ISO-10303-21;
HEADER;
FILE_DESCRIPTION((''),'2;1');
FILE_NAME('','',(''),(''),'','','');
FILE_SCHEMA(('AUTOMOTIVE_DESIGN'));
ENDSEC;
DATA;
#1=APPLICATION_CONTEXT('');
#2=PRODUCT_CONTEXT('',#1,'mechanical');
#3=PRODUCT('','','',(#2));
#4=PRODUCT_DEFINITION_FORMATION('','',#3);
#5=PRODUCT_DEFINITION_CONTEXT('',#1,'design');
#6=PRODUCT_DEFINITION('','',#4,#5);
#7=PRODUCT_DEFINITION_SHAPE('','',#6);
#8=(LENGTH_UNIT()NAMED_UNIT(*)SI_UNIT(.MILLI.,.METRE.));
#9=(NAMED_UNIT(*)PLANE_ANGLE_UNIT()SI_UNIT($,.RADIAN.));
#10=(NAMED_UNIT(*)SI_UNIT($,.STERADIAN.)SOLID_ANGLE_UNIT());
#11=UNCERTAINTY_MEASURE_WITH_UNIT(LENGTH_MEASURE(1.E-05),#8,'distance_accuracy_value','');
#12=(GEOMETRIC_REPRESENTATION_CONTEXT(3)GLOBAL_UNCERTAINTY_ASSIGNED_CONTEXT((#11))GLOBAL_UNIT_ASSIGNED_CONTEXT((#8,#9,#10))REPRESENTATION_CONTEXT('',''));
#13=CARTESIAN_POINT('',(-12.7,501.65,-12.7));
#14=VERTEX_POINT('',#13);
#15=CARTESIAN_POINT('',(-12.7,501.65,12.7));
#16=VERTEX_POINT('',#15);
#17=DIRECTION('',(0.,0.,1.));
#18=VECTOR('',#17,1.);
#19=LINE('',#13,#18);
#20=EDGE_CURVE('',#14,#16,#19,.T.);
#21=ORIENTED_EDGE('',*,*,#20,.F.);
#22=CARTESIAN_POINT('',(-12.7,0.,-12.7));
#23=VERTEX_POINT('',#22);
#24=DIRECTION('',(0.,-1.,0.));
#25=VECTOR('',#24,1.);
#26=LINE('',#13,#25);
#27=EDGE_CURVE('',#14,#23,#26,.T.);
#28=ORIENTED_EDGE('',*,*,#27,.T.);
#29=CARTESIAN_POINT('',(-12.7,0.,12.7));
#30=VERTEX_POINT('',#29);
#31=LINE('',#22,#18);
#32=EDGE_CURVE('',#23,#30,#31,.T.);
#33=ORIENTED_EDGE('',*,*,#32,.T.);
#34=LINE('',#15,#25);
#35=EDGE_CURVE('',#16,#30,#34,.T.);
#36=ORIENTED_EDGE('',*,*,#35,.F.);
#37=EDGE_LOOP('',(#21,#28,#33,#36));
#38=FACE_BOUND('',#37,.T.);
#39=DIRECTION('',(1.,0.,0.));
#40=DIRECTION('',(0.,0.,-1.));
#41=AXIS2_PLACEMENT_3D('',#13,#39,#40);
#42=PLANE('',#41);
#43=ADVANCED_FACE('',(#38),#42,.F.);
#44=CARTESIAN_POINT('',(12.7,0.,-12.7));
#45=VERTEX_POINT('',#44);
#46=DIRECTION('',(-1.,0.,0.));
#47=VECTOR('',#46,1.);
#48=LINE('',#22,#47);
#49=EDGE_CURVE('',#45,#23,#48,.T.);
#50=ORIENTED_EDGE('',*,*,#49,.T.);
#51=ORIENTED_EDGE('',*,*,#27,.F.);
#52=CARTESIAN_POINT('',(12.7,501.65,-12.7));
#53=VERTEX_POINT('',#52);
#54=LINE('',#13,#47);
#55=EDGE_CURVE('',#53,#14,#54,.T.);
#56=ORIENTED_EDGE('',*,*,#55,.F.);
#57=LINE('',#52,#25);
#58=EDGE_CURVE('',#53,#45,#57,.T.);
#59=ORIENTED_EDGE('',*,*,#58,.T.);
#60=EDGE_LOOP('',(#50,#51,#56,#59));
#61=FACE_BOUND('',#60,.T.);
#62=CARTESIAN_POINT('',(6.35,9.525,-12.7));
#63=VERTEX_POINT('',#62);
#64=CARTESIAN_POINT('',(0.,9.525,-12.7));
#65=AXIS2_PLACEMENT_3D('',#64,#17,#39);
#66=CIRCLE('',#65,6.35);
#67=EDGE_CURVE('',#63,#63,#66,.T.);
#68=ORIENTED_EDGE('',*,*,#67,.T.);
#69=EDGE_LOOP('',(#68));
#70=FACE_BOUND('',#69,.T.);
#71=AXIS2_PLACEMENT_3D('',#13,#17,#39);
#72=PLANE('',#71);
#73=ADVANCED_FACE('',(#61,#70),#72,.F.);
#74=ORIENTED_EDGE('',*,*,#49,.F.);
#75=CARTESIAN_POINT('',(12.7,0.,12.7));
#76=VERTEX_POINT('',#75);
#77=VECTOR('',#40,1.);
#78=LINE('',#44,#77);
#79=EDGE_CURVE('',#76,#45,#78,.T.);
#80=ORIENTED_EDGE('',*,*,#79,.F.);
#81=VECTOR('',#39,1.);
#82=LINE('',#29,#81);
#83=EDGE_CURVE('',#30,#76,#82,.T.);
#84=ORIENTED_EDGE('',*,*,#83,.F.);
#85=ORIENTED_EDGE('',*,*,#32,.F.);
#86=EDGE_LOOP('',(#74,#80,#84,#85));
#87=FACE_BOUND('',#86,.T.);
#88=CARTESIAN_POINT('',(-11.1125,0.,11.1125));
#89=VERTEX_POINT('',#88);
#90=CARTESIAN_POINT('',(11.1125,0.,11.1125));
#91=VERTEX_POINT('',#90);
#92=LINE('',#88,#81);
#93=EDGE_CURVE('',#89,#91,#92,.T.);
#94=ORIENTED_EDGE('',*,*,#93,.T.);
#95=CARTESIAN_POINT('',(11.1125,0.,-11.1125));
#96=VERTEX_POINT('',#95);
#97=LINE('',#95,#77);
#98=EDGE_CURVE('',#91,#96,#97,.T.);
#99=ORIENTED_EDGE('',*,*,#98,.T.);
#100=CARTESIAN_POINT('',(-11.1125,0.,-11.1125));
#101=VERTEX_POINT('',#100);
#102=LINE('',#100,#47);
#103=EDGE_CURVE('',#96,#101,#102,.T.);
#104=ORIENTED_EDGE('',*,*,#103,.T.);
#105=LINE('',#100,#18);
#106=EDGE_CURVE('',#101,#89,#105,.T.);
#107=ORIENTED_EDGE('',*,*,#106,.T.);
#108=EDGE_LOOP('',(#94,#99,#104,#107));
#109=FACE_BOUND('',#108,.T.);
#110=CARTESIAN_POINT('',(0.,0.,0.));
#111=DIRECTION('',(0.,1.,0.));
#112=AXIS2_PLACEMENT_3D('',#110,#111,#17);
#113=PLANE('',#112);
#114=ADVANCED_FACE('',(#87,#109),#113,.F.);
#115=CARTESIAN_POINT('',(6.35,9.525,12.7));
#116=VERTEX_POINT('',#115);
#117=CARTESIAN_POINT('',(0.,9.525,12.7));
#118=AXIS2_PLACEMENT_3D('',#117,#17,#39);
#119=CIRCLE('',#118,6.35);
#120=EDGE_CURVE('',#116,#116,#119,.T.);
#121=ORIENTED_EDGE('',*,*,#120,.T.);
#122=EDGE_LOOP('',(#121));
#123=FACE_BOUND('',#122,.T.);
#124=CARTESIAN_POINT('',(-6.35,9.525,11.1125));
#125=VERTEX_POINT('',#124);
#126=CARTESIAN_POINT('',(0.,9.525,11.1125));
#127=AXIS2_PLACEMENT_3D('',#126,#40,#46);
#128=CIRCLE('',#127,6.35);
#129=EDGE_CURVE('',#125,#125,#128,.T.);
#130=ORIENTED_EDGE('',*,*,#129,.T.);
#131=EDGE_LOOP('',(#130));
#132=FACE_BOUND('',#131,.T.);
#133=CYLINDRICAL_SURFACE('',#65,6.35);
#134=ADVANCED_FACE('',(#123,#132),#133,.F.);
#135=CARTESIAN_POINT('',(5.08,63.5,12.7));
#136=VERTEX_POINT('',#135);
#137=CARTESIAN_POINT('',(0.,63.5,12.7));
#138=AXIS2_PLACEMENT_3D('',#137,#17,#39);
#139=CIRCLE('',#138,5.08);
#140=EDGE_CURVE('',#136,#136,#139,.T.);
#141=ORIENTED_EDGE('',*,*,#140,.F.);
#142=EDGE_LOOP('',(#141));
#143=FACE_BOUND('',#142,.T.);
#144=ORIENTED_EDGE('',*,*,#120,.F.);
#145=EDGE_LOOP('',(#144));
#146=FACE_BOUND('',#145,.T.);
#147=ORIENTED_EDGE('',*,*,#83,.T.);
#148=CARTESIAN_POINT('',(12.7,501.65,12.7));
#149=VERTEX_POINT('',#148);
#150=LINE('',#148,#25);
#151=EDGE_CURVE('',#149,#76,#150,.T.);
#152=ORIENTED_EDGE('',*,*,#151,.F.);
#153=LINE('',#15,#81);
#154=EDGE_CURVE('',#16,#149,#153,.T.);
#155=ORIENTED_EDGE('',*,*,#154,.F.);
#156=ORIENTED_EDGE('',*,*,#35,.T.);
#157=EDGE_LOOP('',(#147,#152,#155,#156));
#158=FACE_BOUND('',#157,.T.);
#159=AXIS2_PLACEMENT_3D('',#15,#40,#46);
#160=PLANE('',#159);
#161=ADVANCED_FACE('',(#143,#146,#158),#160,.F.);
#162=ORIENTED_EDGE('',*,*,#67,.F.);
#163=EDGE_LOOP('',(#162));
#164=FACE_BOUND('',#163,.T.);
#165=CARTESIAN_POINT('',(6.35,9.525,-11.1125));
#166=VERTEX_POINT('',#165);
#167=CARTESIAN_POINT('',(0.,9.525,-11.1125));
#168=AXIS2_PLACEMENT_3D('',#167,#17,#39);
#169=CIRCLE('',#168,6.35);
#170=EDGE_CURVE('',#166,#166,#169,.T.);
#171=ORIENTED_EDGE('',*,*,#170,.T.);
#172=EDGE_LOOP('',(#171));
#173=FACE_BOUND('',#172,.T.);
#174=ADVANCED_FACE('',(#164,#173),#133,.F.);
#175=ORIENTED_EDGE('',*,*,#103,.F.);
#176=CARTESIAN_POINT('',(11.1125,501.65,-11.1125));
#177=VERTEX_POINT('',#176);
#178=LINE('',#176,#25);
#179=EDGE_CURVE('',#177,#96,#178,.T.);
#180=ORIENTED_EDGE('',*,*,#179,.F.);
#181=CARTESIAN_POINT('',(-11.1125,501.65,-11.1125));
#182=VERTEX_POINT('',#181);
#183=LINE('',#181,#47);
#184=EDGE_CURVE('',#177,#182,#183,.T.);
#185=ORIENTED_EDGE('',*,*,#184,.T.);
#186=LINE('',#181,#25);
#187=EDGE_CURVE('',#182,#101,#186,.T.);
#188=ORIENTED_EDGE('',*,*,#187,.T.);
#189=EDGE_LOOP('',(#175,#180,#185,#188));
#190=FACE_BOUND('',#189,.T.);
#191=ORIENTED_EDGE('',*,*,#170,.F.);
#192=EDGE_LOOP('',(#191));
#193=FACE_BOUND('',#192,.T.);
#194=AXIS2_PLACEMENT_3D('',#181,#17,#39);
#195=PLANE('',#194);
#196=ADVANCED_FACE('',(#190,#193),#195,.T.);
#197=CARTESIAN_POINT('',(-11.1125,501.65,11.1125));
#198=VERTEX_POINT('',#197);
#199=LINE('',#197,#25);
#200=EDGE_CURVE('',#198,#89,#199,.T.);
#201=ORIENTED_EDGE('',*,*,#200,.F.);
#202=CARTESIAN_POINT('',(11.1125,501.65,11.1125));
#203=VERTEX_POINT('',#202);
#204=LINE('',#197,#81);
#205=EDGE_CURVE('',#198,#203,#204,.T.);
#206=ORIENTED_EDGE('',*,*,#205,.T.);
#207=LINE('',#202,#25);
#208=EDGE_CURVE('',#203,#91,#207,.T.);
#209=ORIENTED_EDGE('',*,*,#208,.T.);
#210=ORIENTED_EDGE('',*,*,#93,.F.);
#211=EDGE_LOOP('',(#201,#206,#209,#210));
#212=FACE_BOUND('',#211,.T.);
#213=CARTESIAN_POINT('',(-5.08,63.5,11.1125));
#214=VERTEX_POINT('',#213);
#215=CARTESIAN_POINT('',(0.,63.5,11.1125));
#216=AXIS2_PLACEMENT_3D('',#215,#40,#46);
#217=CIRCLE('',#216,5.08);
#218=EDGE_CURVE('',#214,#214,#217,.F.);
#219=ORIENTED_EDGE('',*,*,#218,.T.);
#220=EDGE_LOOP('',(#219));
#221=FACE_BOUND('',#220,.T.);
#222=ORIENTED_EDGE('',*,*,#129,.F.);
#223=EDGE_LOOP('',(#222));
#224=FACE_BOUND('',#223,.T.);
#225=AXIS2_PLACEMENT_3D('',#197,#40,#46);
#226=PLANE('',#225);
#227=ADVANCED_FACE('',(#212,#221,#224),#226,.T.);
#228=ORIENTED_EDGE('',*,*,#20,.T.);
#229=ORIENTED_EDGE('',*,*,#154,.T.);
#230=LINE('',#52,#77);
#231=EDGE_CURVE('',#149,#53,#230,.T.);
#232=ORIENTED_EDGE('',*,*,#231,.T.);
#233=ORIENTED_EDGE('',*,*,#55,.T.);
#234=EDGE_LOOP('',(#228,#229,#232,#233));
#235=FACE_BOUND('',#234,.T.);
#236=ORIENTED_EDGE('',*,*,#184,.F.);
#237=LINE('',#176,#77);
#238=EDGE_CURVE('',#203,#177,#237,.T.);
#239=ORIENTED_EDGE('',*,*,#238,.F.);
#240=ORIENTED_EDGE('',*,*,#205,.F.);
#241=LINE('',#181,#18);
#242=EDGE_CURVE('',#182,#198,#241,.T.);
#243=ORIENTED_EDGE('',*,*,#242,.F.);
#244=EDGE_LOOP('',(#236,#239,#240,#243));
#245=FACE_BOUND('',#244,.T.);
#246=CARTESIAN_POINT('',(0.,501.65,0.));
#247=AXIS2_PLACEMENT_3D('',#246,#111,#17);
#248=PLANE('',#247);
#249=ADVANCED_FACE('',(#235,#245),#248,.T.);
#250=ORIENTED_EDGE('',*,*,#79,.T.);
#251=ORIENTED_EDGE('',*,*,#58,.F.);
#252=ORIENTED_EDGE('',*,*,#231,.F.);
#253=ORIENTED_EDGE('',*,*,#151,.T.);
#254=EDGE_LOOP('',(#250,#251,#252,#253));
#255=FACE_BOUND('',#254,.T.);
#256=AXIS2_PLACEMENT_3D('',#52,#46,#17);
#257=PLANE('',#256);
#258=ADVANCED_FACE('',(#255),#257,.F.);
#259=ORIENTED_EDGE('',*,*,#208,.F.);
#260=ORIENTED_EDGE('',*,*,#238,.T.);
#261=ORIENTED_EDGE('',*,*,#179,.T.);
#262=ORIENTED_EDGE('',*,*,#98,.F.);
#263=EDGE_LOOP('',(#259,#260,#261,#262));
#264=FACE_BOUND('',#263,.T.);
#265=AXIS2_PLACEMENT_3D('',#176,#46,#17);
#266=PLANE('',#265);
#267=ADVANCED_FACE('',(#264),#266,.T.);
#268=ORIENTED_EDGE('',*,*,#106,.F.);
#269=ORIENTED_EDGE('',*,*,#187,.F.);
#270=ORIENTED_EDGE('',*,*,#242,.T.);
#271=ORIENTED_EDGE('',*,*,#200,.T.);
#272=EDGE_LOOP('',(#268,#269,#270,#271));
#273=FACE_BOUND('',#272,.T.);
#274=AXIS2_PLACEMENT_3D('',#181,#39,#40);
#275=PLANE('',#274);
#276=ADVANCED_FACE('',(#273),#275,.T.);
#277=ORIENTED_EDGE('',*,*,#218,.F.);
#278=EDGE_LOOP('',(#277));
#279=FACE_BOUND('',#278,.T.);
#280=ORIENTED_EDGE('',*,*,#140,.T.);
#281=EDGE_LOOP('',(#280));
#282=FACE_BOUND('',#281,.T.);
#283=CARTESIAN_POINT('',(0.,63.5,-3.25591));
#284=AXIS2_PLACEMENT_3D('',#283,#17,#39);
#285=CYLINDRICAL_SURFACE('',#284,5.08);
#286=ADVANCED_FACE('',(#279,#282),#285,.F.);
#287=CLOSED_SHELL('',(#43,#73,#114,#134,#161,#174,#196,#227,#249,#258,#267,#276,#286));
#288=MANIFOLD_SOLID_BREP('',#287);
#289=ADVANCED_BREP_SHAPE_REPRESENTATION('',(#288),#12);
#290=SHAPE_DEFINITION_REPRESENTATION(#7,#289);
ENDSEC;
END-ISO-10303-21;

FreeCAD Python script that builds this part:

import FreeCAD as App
import Part
import Sketcher

V = App.Vector
Q = App.Units.Quantity

doc = App.newDocument("Part")
body = doc.addObject("PartDesign::Body", "Body")

# Sketch on XZ plane
sketch1 = doc.addObject("Sketcher::SketchObject", "Sketch")
body.addObject(sketch1)
sketch1.AttachmentSupport = (doc.XZ_Plane, [""])
sketch1.MapMode = "FlatFace"
sketch1.addGeometry(Part.LineSegment(V(-12.7, -12.7, 0), V(-12.7, 12.7, 0)), False)
sketch1.addGeometry(Part.LineSegment(V(-12.7, 12.7, 0), V(12.7, 12.7, 0)), False)
sketch1.addGeometry(Part.LineSegment(V(12.7, 12.7, 0), V(12.7, -12.7, 0)), False)
sketch1.addGeometry(Part.LineSegment(V(12.7, -12.7, 0), V(-12.7, -12.7, 0)), False)
sketch1.addGeometry(Part.LineSegment(V(11.1125, 11.1125, 0), V(-11.1125, 11.1125, 0)), False)
sketch1.addGeometry(Part.LineSegment(V(-11.1125, 11.1125, 0), V(-11.1125, -11.1125, 0)), False)
sketch1.addGeometry(Part.LineSegment(V(-11.1125, -11.1125, 0), V(11.1125, -11.1125, 0)), False)
sketch1.addGeometry(Part.LineSegment(V(11.1125, -11.1125, 0), V(11.1125, 11.1125, 0)), False)
sketch1.addConstraint(Sketcher.Constraint("Coincident", 0, 2, 1, 1))
sketch1.addConstraint(Sketcher.Constraint("Coincident", 1, 2, 2, 1))
sketch1.addConstraint(Sketcher.Constraint("Coincident", 2, 2, 3, 1))
sketch1.addConstraint(Sketcher.Constraint("Coincident", 3, 2, 0, 1))
sketch1.addConstraint(Sketcher.Constraint("Coincident", 4, 2, 5, 1))
sketch1.addConstraint(Sketcher.Constraint("Coincident", 5, 2, 6, 1))
sketch1.addConstraint(Sketcher.Constraint("Coincident", 6, 2, 7, 1))
sketch1.addConstraint(Sketcher.Constraint("Coincident", 7, 2, 4, 1))
sketch1.addConstraint(Sketcher.Constraint("Vertical", 0))
sketch1.addConstraint(Sketcher.Constraint("Horizontal", 1))
sketch1.addConstraint(Sketcher.Constraint("Vertical", 2))
sketch1.addConstraint(Sketcher.Constraint("Horizontal", 3))
sketch1.addConstraint(Sketcher.Constraint("Horizontal", 4))
sketch1.addConstraint(Sketcher.Constraint("Vertical", 5))
sketch1.addConstraint(Sketcher.Constraint("Horizontal", 6))
sketch1.addConstraint(Sketcher.Constraint("Vertical", 7))
sketch1.addConstraint(Sketcher.Constraint("Symmetric", 0, 2, 2, 2, -1, 1))
sketch1.addConstraint(Sketcher.Constraint("Symmetric", 4, 2, 6, 2, -1, 1))
sketch1.addConstraint(Sketcher.Constraint("Equal", 3, 0))
sketch1.addConstraint(Sketcher.Constraint("Equal", 6, 5))
sketch1.addConstraint(Sketcher.Constraint("DistanceX", 1, 1, 1, 2, Q("1 in")))
sketch1.addConstraint(Sketcher.Constraint("DistanceX", 4, 2, 4, 1, Q("0.875 in")))
pad1 = doc.addObject("PartDesign::Pad", "Pad")
body.addObject(pad1)
pad1.Profile = sketch1
pad1.Length = Q("19.75 in")
pad1.Reversed = True

# Sketch on XY plane
sketch2 = doc.addObject("Sketcher::SketchObject", "Sketch001")
body.addObject(sketch2)
sketch2.AttachmentSupport = (doc.XY_Plane, [""])
sketch2.MapMode = "FlatFace"
sketch2.AttachmentOffset = App.Placement(V(0, 0, 0.5 * 25.4), App.Rotation())
sketch2.addGeometry(Part.Circle(V(0, 9.525, 0), V(0, 0, 1), 6.35), False)
sketch2.addConstraint(Sketcher.Constraint("PointOnObject", 0, 3, -2))
sketch2.addConstraint(Sketcher.Constraint("Diameter", 0, Q("0.5 in")))
sketch2.addConstraint(Sketcher.Constraint("DistanceY", -1, 1, 0, 3, Q("0.375 in")))
pocket1 = doc.addObject("PartDesign::Pocket", "Pocket")
body.addObject(pocket1)
pocket1.Profile = sketch2
pocket1.Type = "ThroughAll"

# Sketch on XY plane
sketch3 = doc.addObject("Sketcher::SketchObject", "Sketch002")
body.addObject(sketch3)
sketch3.AttachmentSupport = (doc.XY_Plane, [""])
sketch3.MapMode = "FlatFace"
sketch3.AttachmentOffset = App.Placement(V(0, 0, 0.5 * 25.4), App.Rotation())
sketch3.addGeometry(Part.Circle(V(0, 63.5, 0), V(0, 0, 1), 5.08), False)
sketch3.addConstraint(Sketcher.Constraint("PointOnObject", 0, 3, -2))
sketch3.addConstraint(Sketcher.Constraint("Diameter", 0, Q("0.4 in")))
sketch3.addConstraint(Sketcher.Constraint("DistanceY", -1, 1, 0, 3, Q("2.5 in")))
pocket2 = doc.addObject("PartDesign::Pocket", "Pocket001")
body.addObject(pocket2)
pocket2.Profile = sketch3
pocket2.Length = Q("0.0625 in")

doc.recompute()
